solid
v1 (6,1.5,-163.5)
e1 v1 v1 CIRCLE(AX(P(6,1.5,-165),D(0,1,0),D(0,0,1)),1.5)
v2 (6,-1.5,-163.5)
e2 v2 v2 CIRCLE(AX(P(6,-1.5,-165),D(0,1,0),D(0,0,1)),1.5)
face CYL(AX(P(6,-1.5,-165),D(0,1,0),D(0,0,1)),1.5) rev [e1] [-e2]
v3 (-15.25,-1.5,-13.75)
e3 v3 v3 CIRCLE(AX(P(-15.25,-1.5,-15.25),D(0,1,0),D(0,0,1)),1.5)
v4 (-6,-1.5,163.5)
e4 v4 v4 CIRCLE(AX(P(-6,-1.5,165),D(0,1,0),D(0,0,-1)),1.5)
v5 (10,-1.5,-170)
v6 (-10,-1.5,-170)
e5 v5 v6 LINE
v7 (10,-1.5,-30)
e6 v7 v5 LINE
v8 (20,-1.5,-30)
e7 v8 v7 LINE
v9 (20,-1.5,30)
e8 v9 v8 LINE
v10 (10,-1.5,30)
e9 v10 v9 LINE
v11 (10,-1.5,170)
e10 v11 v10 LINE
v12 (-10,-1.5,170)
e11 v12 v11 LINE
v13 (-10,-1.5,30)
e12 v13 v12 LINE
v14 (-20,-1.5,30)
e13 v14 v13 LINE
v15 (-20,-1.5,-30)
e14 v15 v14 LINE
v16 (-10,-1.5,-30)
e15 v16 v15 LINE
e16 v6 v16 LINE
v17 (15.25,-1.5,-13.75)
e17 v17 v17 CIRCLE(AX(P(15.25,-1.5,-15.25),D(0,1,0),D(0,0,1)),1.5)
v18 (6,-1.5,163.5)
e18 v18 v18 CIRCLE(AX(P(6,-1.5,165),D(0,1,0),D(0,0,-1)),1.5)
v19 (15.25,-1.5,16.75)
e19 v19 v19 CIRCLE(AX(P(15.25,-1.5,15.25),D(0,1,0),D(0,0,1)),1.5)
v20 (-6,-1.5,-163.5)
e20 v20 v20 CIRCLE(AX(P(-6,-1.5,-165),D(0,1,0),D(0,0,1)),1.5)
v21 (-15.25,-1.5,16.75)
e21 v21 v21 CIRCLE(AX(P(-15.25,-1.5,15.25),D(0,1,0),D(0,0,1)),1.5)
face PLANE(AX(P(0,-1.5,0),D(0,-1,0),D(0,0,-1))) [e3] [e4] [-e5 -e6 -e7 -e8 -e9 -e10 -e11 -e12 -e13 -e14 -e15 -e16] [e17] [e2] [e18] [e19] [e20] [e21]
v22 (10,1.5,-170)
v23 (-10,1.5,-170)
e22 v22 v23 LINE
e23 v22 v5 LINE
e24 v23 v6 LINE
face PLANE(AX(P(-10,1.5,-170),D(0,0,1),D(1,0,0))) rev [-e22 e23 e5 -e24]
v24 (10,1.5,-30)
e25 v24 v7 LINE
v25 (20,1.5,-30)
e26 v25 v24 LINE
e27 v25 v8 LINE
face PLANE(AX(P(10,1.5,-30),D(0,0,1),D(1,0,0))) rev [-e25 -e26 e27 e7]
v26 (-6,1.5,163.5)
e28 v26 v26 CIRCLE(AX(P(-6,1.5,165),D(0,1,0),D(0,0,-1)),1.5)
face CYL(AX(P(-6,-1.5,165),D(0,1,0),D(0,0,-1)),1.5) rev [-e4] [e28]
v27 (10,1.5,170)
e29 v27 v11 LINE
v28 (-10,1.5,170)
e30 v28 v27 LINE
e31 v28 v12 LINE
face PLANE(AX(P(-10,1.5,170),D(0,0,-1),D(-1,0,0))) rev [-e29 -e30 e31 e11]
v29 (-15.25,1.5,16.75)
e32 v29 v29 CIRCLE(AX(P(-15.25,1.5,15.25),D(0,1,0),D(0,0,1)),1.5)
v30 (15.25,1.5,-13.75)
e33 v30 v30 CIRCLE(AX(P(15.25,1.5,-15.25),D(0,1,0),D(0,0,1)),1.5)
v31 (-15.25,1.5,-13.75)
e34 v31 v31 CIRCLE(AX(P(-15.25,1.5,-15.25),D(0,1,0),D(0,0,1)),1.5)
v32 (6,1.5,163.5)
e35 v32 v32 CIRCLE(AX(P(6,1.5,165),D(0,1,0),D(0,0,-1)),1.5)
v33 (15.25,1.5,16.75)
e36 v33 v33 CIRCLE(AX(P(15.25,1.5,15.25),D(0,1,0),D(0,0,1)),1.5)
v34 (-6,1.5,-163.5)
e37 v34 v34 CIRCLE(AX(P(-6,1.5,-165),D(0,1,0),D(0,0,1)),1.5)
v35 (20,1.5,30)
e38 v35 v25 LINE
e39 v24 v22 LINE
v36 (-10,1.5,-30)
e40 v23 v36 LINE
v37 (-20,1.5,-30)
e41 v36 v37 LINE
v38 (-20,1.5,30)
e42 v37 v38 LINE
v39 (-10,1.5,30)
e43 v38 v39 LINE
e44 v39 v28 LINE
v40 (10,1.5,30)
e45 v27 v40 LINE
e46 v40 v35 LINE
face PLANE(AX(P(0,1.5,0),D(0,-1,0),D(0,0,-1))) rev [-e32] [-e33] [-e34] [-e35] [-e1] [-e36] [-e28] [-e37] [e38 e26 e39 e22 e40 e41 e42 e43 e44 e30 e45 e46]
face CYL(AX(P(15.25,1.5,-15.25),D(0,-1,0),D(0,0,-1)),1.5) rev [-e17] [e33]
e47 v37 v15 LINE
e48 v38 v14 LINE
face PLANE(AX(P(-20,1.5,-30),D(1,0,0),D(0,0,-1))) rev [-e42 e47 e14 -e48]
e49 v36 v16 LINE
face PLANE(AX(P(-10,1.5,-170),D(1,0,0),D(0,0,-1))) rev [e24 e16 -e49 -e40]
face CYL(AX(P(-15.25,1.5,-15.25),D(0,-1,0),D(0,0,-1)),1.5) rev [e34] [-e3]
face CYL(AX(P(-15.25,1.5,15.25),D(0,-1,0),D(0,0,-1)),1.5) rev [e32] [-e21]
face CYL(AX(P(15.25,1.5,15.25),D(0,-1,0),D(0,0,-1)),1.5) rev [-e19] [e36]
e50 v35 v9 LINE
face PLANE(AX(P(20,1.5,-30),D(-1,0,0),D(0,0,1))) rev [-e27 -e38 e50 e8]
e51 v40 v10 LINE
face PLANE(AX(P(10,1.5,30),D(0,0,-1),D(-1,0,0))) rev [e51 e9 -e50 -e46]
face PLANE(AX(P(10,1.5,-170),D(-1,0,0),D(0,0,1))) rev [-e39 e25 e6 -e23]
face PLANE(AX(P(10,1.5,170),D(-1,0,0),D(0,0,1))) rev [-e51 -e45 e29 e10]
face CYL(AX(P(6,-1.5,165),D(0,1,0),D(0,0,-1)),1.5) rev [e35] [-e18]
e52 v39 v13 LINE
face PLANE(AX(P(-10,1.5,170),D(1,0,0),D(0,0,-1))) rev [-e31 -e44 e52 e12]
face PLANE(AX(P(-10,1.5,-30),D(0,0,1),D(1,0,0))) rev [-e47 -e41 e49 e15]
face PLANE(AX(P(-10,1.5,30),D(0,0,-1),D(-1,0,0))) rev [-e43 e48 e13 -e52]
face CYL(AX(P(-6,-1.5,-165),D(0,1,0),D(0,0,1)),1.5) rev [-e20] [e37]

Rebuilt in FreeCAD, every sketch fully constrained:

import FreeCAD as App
import Part
import Sketcher
Q = App.Units.Quantity


def add_polygon(sketch, points):
    """Adds a closed chain of lines whose ends are joined by coincident constraints."""
    first, n = sketch.GeometryCount, len(points)
    for a, b in zip(points, points[1:] + points[:1]):
        sketch.addGeometry(Part.LineSegment(App.Vector(*a, 0), App.Vector(*b, 0)), False)
    for i in range(n):
        sketch.addConstraint(Sketcher.Constraint("Coincident", first + i, 2, first + (i + 1) % n, 1))

doc = App.newDocument("Part")
body = doc.addObject("PartDesign::Body", "Body")

sketch1 = body.newObject("Sketcher::SketchObject", "Sketch")
sketch1.AttachmentSupport = (doc.getObject("XZ_Plane"), [""])
sketch1.MapMode = "FlatFace"
add_polygon(sketch1, [(-10, -170), (-10, -30), (-20, -30), (-20, 30), (-10, 30), (-10, 170), (10, 170), (10, 30), (20, 30), (20, -30), (10, -30), (10, -170)])
sketch1.addGeometry(Part.Circle(App.Vector(-15.2, 15.2, 0), App.Vector(0, 0, 1), 1.5), False)
sketch1.addGeometry(Part.Circle(App.Vector(15.2, 15.2, 0), App.Vector(0, 0, 1), 1.5), False)
sketch1.addGeometry(Part.Circle(App.Vector(-15.2, -15.2, 0), App.Vector(0, 0, 1), 1.5), False)
sketch1.addGeometry(Part.Circle(App.Vector(15.2, -15.2, 0), App.Vector(0, 0, 1), 1.5), False)
sketch1.addConstraint([
    Sketcher.Constraint("Vertical", 0),
    Sketcher.Constraint("Horizontal", 1),
    Sketcher.Constraint("Vertical", 2),
    Sketcher.Constraint("Horizontal", 3),
    Sketcher.Constraint("Vertical", 4),
    Sketcher.Constraint("Horizontal", 5),
    Sketcher.Constraint("Vertical", 6),
    Sketcher.Constraint("Horizontal", 7),
    Sketcher.Constraint("Vertical", 8),
    Sketcher.Constraint("Horizontal", 9),
    Sketcher.Constraint("Vertical", 10),
    Sketcher.Constraint("Horizontal", 11),
    Sketcher.Constraint("Equal", 12, 13),
    Sketcher.Constraint("Equal", 13, 14),
    Sketcher.Constraint("Equal", 14, 15),
    Sketcher.Constraint("Symmetric", 13, 3, 14, 3, -1, 1),
    Sketcher.Constraint("Symmetric", 12, 3, 15, 3, -1, 1),
    Sketcher.Constraint("Symmetric", 0, 2, 6, 2, -1, 1),
    Sketcher.Constraint("Symmetric", 2, 2, 8, 2, -1, 1),
    Sketcher.Constraint("Symmetric", 4, 2, 10, 2, -1, 1),
    Sketcher.Constraint("Symmetric", 12, 3, 13, 3, -2),
    Sketcher.Constraint("Symmetric", 3, 2, 6, 2, -2),
    Sketcher.Constraint("Diameter", 12, Q("3 mm")),
    Sketcher.Constraint("DistanceX", 1, 2, 1, 1, Q("10 mm")),
    Sketcher.Constraint("DistanceX", 5, 1, 5, 2, Q("20 mm")),
    Sketcher.Constraint("DistanceY", 0, 1, 0, 2, Q("140 mm")),
    Sketcher.Constraint("DistanceY", 2, 1, 2, 2, Q("60 mm")),
    Sketcher.Constraint("DistanceX", 12, 3, 13, 3, Q("30.5 mm")),
    Sketcher.Constraint("DistanceY", 14, 3, 12, 3, Q("30.5 mm")),
])
pad1 = body.newObject("PartDesign::Pad", "Pad")
pad1.Profile = sketch1
pad1.Length = 3
pad1.Midplane = True

sketch2 = body.newObject("Sketcher::SketchObject", "Sketch001")
sketch2.AttachmentSupport = (doc.getObject("XZ_Plane"), [""])
sketch2.MapMode = "FlatFace"
sketch2.addGeometry([
    Part.Circle(App.Vector(-6, -165, 0), App.Vector(0, 0, 1), 1.5),
    Part.Circle(App.Vector(6, -165, 0), App.Vector(0, 0, 1), 1.5),
], False)
sketch2.addConstraint([
    Sketcher.Constraint("Equal", 0, 1),
    Sketcher.Constraint("Symmetric", 0, 3, 1, 3, -2),
    Sketcher.Constraint("Diameter", 0, Q("3 mm")),
    Sketcher.Constraint("DistanceX", 0, 3, -1, 1, Q("6 mm")),
    Sketcher.Constraint("DistanceY", 0, 3, -1, 1, Q("165 mm")),
])
pocket1 = body.newObject("PartDesign::Pocket", "Pocket")
pocket1.Profile = sketch2
pocket1.Length = 344.358
pocket1.Midplane = True
doc.recompute()

polarpattern = body.newObject("PartDesign::PolarPattern", "PolarPattern")
polarpattern.Originals = [pocket1]
polarpattern.Axis = (doc.getObject("Y_Axis"), [""])
polarpattern.Angle = 360
polarpattern.Occurrences = 2
body.Tip = polarpattern

doc.recompute()
